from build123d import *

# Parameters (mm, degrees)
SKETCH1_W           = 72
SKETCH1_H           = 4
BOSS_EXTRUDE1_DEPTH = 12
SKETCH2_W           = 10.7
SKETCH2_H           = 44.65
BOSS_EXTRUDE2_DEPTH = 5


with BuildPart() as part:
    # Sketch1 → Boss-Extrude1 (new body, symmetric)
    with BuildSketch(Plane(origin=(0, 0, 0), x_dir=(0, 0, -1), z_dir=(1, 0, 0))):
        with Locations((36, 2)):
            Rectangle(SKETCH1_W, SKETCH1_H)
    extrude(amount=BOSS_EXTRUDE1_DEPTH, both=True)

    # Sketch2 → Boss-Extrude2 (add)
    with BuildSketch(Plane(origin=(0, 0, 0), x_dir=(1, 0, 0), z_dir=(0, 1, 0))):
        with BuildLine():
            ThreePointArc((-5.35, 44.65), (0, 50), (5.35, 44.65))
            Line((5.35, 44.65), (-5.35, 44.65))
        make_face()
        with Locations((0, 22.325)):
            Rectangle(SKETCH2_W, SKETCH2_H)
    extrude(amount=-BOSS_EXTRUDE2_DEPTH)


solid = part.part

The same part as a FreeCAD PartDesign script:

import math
import FreeCAD as App
import Part
import Sketcher
from FreeCAD import Vector
Q = App.Units.Quantity


def add_polygon(sketch, points):
    """Adds a closed chain of lines whose ends are joined by coincident constraints."""
    first, n = sketch.GeometryCount, len(points)
    for a, b in zip(points, points[1:] + points[:1]):
        sketch.addGeometry(Part.LineSegment(App.Vector(*a, 0), App.Vector(*b, 0)), False)
    for i in range(n):
        sketch.addConstraint(Sketcher.Constraint("Coincident", first + i, 2, first + (i + 1) % n, 1))

doc = App.newDocument("Part")
body = doc.addObject("PartDesign::Body", "Body")

# Sketch on YZ plane
sketch1 = doc.addObject("Sketcher::SketchObject", "Sketch")
body.addObject(sketch1)
sketch1.AttachmentSupport = (doc.YZ_Plane, [""])
sketch1.MapMode = "FlatFace"
add_polygon(sketch1, [(4, 0), (0, 0), (0, -72), (4, -72)])  # lines 0-3
sketch1.addConstraint([
    Sketcher.Constraint("Horizontal", 0),
    Sketcher.Constraint("Vertical", 1),
    Sketcher.Constraint("Horizontal", 2),
    Sketcher.Constraint("Vertical", 3),
    Sketcher.Constraint("Coincident", 0, 2, -1, 1),
    Sketcher.Constraint("DistanceX", 0, 2, 0, 1, Q("4 mm")),
    Sketcher.Constraint("DistanceY", 1, 2, 1, 1, Q("72 mm")),
])
pad1 = doc.addObject("PartDesign::Pad", "Pad")
body.addObject(pad1)
pad1.Profile = sketch1
pad1.Length = 24
pad1.Midplane = True

# Sketch on XZ plane
sketch2 = doc.addObject("Sketcher::SketchObject", "Sketch001")
body.addObject(sketch2)
sketch2.AttachmentSupport = (doc.XZ_Plane, [""])
sketch2.MapMode = "FlatFace"
sketch2.addGeometry([
    Part.ArcOfCircle(Part.Circle(Vector(0, -45, 0), Vector(0, 0, 1), 5), math.radians(180), math.radians(360)),
    Part.LineSegment(Vector(-5, -45, 0), Vector(-5, 0, 0)),
    Part.LineSegment(Vector(-5, 0, 0), Vector(5, 0, 0)),
    Part.LineSegment(Vector(5, 0, 0), Vector(5, -45, 0)),
], False)
sketch2.addConstraint([
    Sketcher.Constraint("Tangent", 0, 1, 1, 1),
    Sketcher.Constraint("Coincident", 1, 2, 2, 1),
    Sketcher.Constraint("Coincident", 2, 2, 3, 1),
    Sketcher.Constraint("Tangent", 3, 2, 0, 2),
    Sketcher.Constraint("Vertical", 1),
    Sketcher.Constraint("Horizontal", 2),
    Sketcher.Constraint("Vertical", 3),
    Sketcher.Constraint("Symmetric", 1, 2, 2, 2, -1, 1),
    Sketcher.Constraint("Radius", 0, Q("5.35 mm")),
    Sketcher.Constraint("DistanceY", 1, 1, 1, 2, Q("44.65 mm")),
])
pad2 = doc.addObject("PartDesign::Pad", "Pad001")
body.addObject(pad2)
pad2.Profile = sketch2
pad2.Length = 5

doc.recompute()
